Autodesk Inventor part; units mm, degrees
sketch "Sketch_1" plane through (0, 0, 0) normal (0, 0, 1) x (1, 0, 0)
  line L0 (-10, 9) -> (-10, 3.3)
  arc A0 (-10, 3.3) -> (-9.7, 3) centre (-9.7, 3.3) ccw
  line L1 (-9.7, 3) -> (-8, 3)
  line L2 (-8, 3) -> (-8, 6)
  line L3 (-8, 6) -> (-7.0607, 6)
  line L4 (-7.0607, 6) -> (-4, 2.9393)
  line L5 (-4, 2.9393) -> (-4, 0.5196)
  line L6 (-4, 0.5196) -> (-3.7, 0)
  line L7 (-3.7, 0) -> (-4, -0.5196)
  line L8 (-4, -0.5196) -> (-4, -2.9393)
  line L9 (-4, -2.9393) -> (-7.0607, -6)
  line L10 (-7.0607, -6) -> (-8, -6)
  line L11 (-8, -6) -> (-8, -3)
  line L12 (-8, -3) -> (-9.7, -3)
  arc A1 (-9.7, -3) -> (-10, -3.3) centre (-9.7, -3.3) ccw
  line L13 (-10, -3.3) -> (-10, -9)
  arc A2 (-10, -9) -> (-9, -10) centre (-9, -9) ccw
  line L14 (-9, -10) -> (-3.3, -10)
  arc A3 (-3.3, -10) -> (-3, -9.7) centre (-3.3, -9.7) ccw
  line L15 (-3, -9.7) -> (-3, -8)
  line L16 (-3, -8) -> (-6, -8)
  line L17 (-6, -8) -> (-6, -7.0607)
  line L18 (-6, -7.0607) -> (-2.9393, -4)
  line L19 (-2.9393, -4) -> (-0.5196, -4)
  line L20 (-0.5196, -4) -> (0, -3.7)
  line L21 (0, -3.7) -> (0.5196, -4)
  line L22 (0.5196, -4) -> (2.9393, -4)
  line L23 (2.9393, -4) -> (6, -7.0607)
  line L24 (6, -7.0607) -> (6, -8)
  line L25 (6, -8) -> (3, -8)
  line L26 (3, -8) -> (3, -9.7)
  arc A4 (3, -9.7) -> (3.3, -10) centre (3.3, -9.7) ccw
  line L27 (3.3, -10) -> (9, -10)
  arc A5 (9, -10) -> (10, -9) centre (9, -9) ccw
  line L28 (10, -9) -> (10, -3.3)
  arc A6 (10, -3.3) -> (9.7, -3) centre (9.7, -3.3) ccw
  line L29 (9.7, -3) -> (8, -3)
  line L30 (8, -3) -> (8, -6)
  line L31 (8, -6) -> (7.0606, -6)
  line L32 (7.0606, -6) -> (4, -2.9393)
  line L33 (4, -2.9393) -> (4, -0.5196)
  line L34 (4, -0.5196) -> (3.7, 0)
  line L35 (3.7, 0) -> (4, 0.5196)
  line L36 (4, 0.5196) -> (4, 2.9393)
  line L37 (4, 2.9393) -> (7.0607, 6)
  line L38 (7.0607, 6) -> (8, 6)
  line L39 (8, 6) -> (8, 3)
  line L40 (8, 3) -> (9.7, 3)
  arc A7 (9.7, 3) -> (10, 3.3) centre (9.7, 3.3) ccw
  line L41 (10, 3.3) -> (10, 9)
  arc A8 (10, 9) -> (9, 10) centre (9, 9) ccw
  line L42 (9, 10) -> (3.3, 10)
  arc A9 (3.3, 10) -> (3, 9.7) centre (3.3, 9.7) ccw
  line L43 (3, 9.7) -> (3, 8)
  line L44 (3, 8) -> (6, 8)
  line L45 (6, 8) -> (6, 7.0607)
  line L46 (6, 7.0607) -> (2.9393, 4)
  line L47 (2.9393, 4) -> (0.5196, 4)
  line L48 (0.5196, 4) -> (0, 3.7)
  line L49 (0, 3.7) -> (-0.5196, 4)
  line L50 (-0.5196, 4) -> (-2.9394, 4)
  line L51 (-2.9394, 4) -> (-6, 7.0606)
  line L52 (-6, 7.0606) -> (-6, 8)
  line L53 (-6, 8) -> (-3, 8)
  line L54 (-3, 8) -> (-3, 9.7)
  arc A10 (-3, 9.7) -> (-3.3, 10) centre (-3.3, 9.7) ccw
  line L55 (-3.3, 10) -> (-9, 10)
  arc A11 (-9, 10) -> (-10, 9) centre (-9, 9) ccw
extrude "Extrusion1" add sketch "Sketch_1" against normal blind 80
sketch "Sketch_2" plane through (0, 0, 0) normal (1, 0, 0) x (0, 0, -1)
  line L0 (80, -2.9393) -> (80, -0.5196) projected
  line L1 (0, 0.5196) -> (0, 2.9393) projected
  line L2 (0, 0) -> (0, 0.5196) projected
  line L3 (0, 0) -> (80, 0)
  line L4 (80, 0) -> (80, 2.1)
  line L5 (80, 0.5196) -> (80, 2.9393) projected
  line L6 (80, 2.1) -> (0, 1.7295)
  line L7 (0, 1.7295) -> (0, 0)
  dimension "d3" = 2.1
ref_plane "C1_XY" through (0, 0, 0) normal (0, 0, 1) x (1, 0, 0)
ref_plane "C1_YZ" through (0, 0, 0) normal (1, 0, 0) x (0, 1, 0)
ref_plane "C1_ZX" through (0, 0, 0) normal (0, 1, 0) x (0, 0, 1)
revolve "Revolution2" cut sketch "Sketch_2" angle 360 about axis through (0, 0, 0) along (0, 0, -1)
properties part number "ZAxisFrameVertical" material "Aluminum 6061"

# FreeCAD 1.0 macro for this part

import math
import FreeCAD as App
import Part
import Sketcher
Q = App.Units.Quantity

doc = App.newDocument("Part")
body = doc.addObject("PartDesign::Body", "Body")

sketch1 = body.newObject("Sketcher::SketchObject", "Sketch")
sketch1.AttachmentSupport = (doc.getObject("XY_Plane"), [""])
sketch1.MapMode = "FlatFace"
sketch1.addGeometry([
    Part.ArcOfCircle(Part.Circle(App.Vector(-9, 9, 0), App.Vector(0, 0, 1), 1), math.radians(90), math.radians(180)),
    Part.LineSegment(App.Vector(-10, 9, 0), App.Vector(-10, 3.3, 0)),
    Part.ArcOfCircle(Part.Circle(App.Vector(-9.7, 3.3, 0), App.Vector(0, 0, 1), 0.3), math.radians(180), math.radians(270)),
    Part.LineSegment(App.Vector(-9.7, 3, 0), App.Vector(-8, 3, 0)),
    Part.LineSegment(App.Vector(-8, 3, 0), App.Vector(-8, 6, 0)),
    Part.LineSegment(App.Vector(-8, 6, 0), App.Vector(-7.0607, 6, 0)),
    Part.LineSegment(App.Vector(-7.0607, 6, 0), App.Vector(-4, 2.9393, 0)),
    Part.LineSegment(App.Vector(-4, 2.9393, 0), App.Vector(-4, 0.5196, 0)),
    Part.LineSegment(App.Vector(-4, 0.5196, 0), App.Vector(-3.7, 0, 0)),
    Part.LineSegment(App.Vector(-3.7, 0, 0), App.Vector(-4, -0.5196, 0)),
    Part.LineSegment(App.Vector(-4, -0.5196, 0), App.Vector(-4, -2.9393, 0)),
    Part.LineSegment(App.Vector(-4, -2.9393, 0), App.Vector(-7.0607, -6, 0)),
    Part.LineSegment(App.Vector(-7.0607, -6, 0), App.Vector(-8, -6, 0)),
    Part.LineSegment(App.Vector(-8, -6, 0), App.Vector(-8, -3, 0)),
    Part.LineSegment(App.Vector(-8, -3, 0), App.Vector(-9.7, -3, 0)),
    Part.ArcOfCircle(Part.Circle(App.Vector(-9.7, -3.3, 0), App.Vector(0, 0, 1), 0.3), math.radians(90), math.radians(180)),
    Part.LineSegment(App.Vector(-10, -3.3, 0), App.Vector(-10, -9, 0)),
    Part.ArcOfCircle(Part.Circle(App.Vector(-9, -9, 0), App.Vector(0, 0, 1), 1), math.radians(180), math.radians(270)),
    Part.LineSegment(App.Vector(-9, -10, 0), App.Vector(-3.3, -10, 0)),
    Part.ArcOfCircle(Part.Circle(App.Vector(-3.3, -9.7, 0), App.Vector(0, 0, 1), 0.3), math.radians(-90), math.radians(0)),
    Part.LineSegment(App.Vector(-3, -9.7, 0), App.Vector(-3, -8, 0)),
    Part.LineSegment(App.Vector(-3, -8, 0), App.Vector(-6, -8, 0)),
    Part.LineSegment(App.Vector(-6, -8, 0), App.Vector(-6, -7.0607, 0)),
    Part.LineSegment(App.Vector(-6, -7.0607, 0), App.Vector(-2.9393, -4, 0)),
    Part.LineSegment(App.Vector(-2.9393, -4, 0), App.Vector(-0.5196, -4, 0)),
    Part.LineSegment(App.Vector(-0.5196, -4, 0), App.Vector(0, -3.7, 0)),
    Part.LineSegment(App.Vector(0, -3.7, 0), App.Vector(0.5196, -4, 0)),
    Part.LineSegment(App.Vector(0.5196, -4, 0), App.Vector(2.9393, -4, 0)),
    Part.LineSegment(App.Vector(2.9393, -4, 0), App.Vector(6, -7.0607, 0)),
    Part.LineSegment(App.Vector(6, -7.0607, 0), App.Vector(6, -8, 0)),
    Part.LineSegment(App.Vector(6, -8, 0), App.Vector(3, -8, 0)),
    Part.LineSegment(App.Vector(3, -8, 0), App.Vector(3, -9.7, 0)),
    Part.ArcOfCircle(Part.Circle(App.Vector(3.3, -9.7, 0), App.Vector(0, 0, 1), 0.3), math.radians(180), math.radians(270)),
    Part.LineSegment(App.Vector(3.3, -10, 0), App.Vector(9, -10, 0)),
    Part.ArcOfCircle(Part.Circle(App.Vector(9, -9, 0), App.Vector(0, 0, 1), 1), math.radians(-90), math.radians(0)),
    Part.LineSegment(App.Vector(10, -9, 0), App.Vector(10, -3.3, 0)),
    Part.ArcOfCircle(Part.Circle(App.Vector(9.7, -3.3, 0), App.Vector(0, 0, 1), 0.3), math.radians(0), math.radians(90)),
    Part.LineSegment(App.Vector(9.7, -3, 0), App.Vector(8, -3, 0)),
    Part.LineSegment(App.Vector(8, -3, 0), App.Vector(8, -6, 0)),
    Part.LineSegment(App.Vector(8, -6, 0), App.Vector(7.0606, -6, 0)),
    Part.LineSegment(App.Vector(7.0606, -6, 0), App.Vector(4, -2.9393, 0)),
    Part.LineSegment(App.Vector(4, -2.9393, 0), App.Vector(4, -0.5196, 0)),
    Part.LineSegment(App.Vector(4, -0.5196, 0), App.Vector(3.7, 0, 0)),
    Part.LineSegment(App.Vector(3.7, 0, 0), App.Vector(4, 0.5196, 0)),
    Part.LineSegment(App.Vector(4, 0.5196, 0), App.Vector(4, 2.9393, 0)),
    Part.LineSegment(App.Vector(4, 2.9393, 0), App.Vector(7.0607, 6, 0)),
    Part.LineSegment(App.Vector(7.0607, 6, 0), App.Vector(8, 6, 0)),
    Part.LineSegment(App.Vector(8, 6, 0), App.Vector(8, 3, 0)),
    Part.LineSegment(App.Vector(8, 3, 0), App.Vector(9.7, 3, 0)),
    Part.ArcOfCircle(Part.Circle(App.Vector(9.7, 3.3, 0), App.Vector(0, 0, 1), 0.3), math.radians(-90), math.radians(0)),
    Part.LineSegment(App.Vector(10, 3.3, 0), App.Vector(10, 9, 0)),
    Part.ArcOfCircle(Part.Circle(App.Vector(9, 9, 0), App.Vector(0, 0, 1), 1), math.radians(0), math.radians(90)),
    Part.LineSegment(App.Vector(9, 10, 0), App.Vector(3.3, 10, 0)),
    Part.ArcOfCircle(Part.Circle(App.Vector(3.3, 9.7, 0), App.Vector(0, 0, 1), 0.3), math.radians(90), math.radians(180)),
    Part.LineSegment(App.Vector(3, 9.7, 0), App.Vector(3, 8, 0)),
    Part.LineSegment(App.Vector(3, 8, 0), App.Vector(6, 8, 0)),
    Part.LineSegment(App.Vector(6, 8, 0), App.Vector(6, 7.0607, 0)),
    Part.LineSegment(App.Vector(6, 7.0607, 0), App.Vector(2.9393, 4, 0)),
    Part.LineSegment(App.Vector(2.9393, 4, 0), App.Vector(0.5196, 4, 0)),
    Part.LineSegment(App.Vector(0.5196, 4, 0), App.Vector(0, 3.7, 0)),
    Part.LineSegment(App.Vector(0, 3.7, 0), App.Vector(-0.5196, 4, 0)),
    Part.LineSegment(App.Vector(-0.5196, 4, 0), App.Vector(-2.9394, 4, 0)),
    Part.LineSegment(App.Vector(-2.9394, 4, 0), App.Vector(-6, 7.0606, 0)),
    Part.LineSegment(App.Vector(-6, 7.0606, 0), App.Vector(-6, 8, 0)),
    Part.LineSegment(App.Vector(-6, 8, 0), App.Vector(-3, 8, 0)),
    Part.LineSegment(App.Vector(-3, 8, 0), App.Vector(-3, 9.7, 0)),
    Part.ArcOfCircle(Part.Circle(App.Vector(-3.3, 9.7, 0), App.Vector(0, 0, 1), 0.3), math.radians(0), math.radians(90)),
    Part.LineSegment(App.Vector(-3.3, 10, 0), App.Vector(-9, 10, 0)),
], False)
sketch1.addConstraint([
    Sketcher.Constraint("Tangent", 0, 2, 1, 1),
    Sketcher.Constraint("Tangent", 1, 2, 2, 1),
    Sketcher.Constraint("Tangent", 2, 2, 3, 1),
    Sketcher.Constraint("Coincident", 3, 2, 4, 1),
    Sketcher.Constraint("Coincident", 4, 2, 5, 1),
    Sketcher.Constraint("Coincident", 5, 2, 6, 1),
    Sketcher.Constraint("Coincident", 6, 2, 7, 1),
    Sketcher.Constraint("Coincident", 7, 2, 8, 1),
    Sketcher.Constraint("Coincident", 8, 2, 9, 1),
    Sketcher.Constraint("Coincident", 9, 2, 10, 1),
    Sketcher.Constraint("Coincident", 10, 2, 11, 1),
    Sketcher.Constraint("Coincident", 11, 2, 12, 1),
    Sketcher.Constraint("Coincident", 12, 2, 13, 1),
    Sketcher.Constraint("Coincident", 13, 2, 14, 1),
    Sketcher.Constraint("Tangent", 14, 2, 15, 1),
    Sketcher.Constraint("Tangent", 15, 2, 16, 1),
    Sketcher.Constraint("Tangent", 16, 2, 17, 1),
    Sketcher.Constraint("Tangent", 17, 2, 18, 1),
    Sketcher.Constraint("Tangent", 18, 2, 19, 1),
    Sketcher.Constraint("Tangent", 19, 2, 20, 1),
    Sketcher.Constraint("Coincident", 20, 2, 21, 1),
    Sketcher.Constraint("Coincident", 21, 2, 22, 1),
    Sketcher.Constraint("Coincident", 22, 2, 23, 1),
    Sketcher.Constraint("Coincident", 23, 2, 24, 1),
    Sketcher.Constraint("Coincident", 24, 2, 25, 1),
    Sketcher.Constraint("Coincident", 25, 2, 26, 1),
    Sketcher.Constraint("Coincident", 26, 2, 27, 1),
    Sketcher.Constraint("Coincident", 27, 2, 28, 1),
    Sketcher.Constraint("Coincident", 28, 2, 29, 1),
    Sketcher.Constraint("Coincident", 29, 2, 30, 1),
    Sketcher.Constraint("Coincident", 30, 2, 31, 1),
    Sketcher.Constraint("Tangent", 31, 2, 32, 1),
    Sketcher.Constraint("Tangent", 32, 2, 33, 1),
    Sketcher.Constraint("Tangent", 33, 2, 34, 1),
    Sketcher.Constraint("Tangent", 34, 2, 35, 1),
    Sketcher.Constraint("Tangent", 35, 2, 36, 1),
    Sketcher.Constraint("Tangent", 36, 2, 37, 1),
    Sketcher.Constraint("Coincident", 37, 2, 38, 1),
    Sketcher.Constraint("Coincident", 38, 2, 39, 1),
    Sketcher.Constraint("Coincident", 39, 2, 40, 1),
    Sketcher.Constraint("Coincident", 40, 2, 41, 1),
    Sketcher.Constraint("Coincident", 41, 2, 42, 1),
    Sketcher.Constraint("Coincident", 42, 2, 43, 1),
    Sketcher.Constraint("Coincident", 43, 2, 44, 1),
    Sketcher.Constraint("Coincident", 44, 2, 45, 1),
    Sketcher.Constraint("Coincident", 45, 2, 46, 1),
    Sketcher.Constraint("Coincident", 46, 2, 47, 1),
    Sketcher.Constraint("Coincident", 47, 2, 48, 1),
    Sketcher.Constraint("Tangent", 48, 2, 49, 1),
    Sketcher.Constraint("Tangent", 49, 2, 50, 1),
    Sketcher.Constraint("Tangent", 50, 2, 51, 1),
    Sketcher.Constraint("Tangent", 51, 2, 52, 1),
    Sketcher.Constraint("Tangent", 52, 2, 53, 1),
    Sketcher.Constraint("Tangent", 53, 2, 54, 1),
    Sketcher.Constraint("Coincident", 54, 2, 55, 1),
    Sketcher.Constraint("Coincident", 55, 2, 56, 1),
    Sketcher.Constraint("Coincident", 56, 2, 57, 1),
    Sketcher.Constraint("Coincident", 57, 2, 58, 1),
    Sketcher.Constraint("Coincident", 58, 2, 59, 1),
    Sketcher.Constraint("Coincident", 59, 2, 60, 1),
    Sketcher.Constraint("Coincident", 60, 2, 61, 1),
    Sketcher.Constraint("Coincident", 61, 2, 62, 1),
    Sketcher.Constraint("Coincident", 62, 2, 63, 1),
    Sketcher.Constraint("Coincident", 63, 2, 64, 1),
    Sketcher.Constraint("Coincident", 64, 2, 65, 1),
    Sketcher.Constraint("Tangent", 65, 2, 66, 1),
    Sketcher.Constraint("Tangent", 66, 2, 67, 1),
    Sketcher.Constraint("Tangent", 67, 2, 0, 1),
    Sketcher.Constraint("Vertical", 1),
    Sketcher.Constraint("Horizontal", 3),
    Sketcher.Constraint("Vertical", 4),
    Sketcher.Constraint("Horizontal", 5),
    Sketcher.Constraint("Vertical", 7),
    Sketcher.Constraint("Vertical", 10),
    Sketcher.Constraint("Horizontal", 12),
    Sketcher.Constraint("Vertical", 13),
    Sketcher.Constraint("Horizontal", 14),
    Sketcher.Constraint("Vertical", 16),
    Sketcher.Constraint("Horizontal", 18),
    Sketcher.Constraint("Vertical", 20),
    Sketcher.Constraint("Horizontal", 21),
    Sketcher.Constraint("Vertical", 22),
    Sketcher.Constraint("Horizontal", 24),
    Sketcher.Constraint("Horizontal", 27),
    Sketcher.Constraint("Vertical", 29),
    Sketcher.Constraint("Horizontal", 30),
    Sketcher.Constraint("Vertical", 31),
    Sketcher.Constraint("Horizontal", 33),
    Sketcher.Constraint("Vertical", 35),
    Sketcher.Constraint("Horizontal", 37),
    Sketcher.Constraint("Vertical", 38),
    Sketcher.Constraint("Horizontal", 39),
    Sketcher.Constraint("Vertical", 41),
    Sketcher.Constraint("Vertical", 44),
    Sketcher.Constraint("Horizontal", 46),
    Sketcher.Constraint("Vertical", 47),
    Sketcher.Constraint("Horizontal", 48),
    Sketcher.Constraint("Vertical", 50),
    Sketcher.Constraint("Horizontal", 52),
    Sketcher.Constraint("Vertical", 54),
    Sketcher.Constraint("Horizontal", 55),
    Sketcher.Constraint("Vertical", 56),
    Sketcher.Constraint("Horizontal", 58),
    Sketcher.Constraint("Horizontal", 61),
    Sketcher.Constraint("Vertical", 63),
    Sketcher.Constraint("Horizontal", 64),
    Sketcher.Constraint("Vertical", 65),
    Sketcher.Constraint("Horizontal", 67),
    Sketcher.Constraint("Equal", 2, 15),
    Sketcher.Constraint("Equal", 0, 17),
    Sketcher.Constraint("Equal", 15, 19),
    Sketcher.Constraint("Equal", 19, 32),
    Sketcher.Constraint("Equal", 17, 34),
    Sketcher.Constraint("Equal", 32, 36),
    Sketcher.Constraint("Equal", 36, 49),
    Sketcher.Constraint("Equal", 34, 51),
    Sketcher.Constraint("Equal", 49, 53),
    Sketcher.Constraint("Equal", 53, 66),
    Sketcher.Constraint("Symmetric", 0, 3, 34, 3, -1, 1),
    Sketcher.Constraint("Symmetric", 15, 3, 49, 3, -1, 1),
    Sketcher.Constraint("Symmetric", 19, 3, 53, 3, -1, 1),
    Sketcher.Constraint("Symmetric", 3, 2, 37, 2, -1, 1),
    Sketcher.Constraint("Symmetric", 5, 2, 39, 2, -1, 1),
    Sketcher.Constraint("Symmetric", 6, 2, 40, 2, -1, 1),
    Sketcher.Constraint("Symmetric", 8, 2, 42, 2, -1, 1),
    Sketcher.Constraint("Symmetric", 9, 2, 43, 2, -1, 1),
    Sketcher.Constraint("Symmetric", 11, 2, 45, 2, -1, 1),
    Sketcher.Constraint("Symmetric", 21, 2, 55, 2, -1, 1),
    Sketcher.Constraint("Symmetric", 23, 2, 57, 2, -1, 1),
    Sketcher.Constraint("Symmetric", 25, 2, 59, 2, -1, 1),
    Sketcher.Constraint("Symmetric", 26, 2, 60, 2, -1, 1),
    Sketcher.Constraint("Symmetric", 28, 2, 62, 2, -1, 1),
    Sketcher.Constraint("Symmetric", 30, 2, 64, 2, -1, 1),
    Sketcher.Constraint("Symmetric", 19, 3, 32, 3, -2),
    Sketcher.Constraint("Symmetric", 15, 3, 36, 3, -2),
    Sketcher.Constraint("Symmetric", 24, 2, 26, 2, -2),
    Sketcher.Constraint("Symmetric", 22, 2, 28, 2, -2),
    Sketcher.Constraint("Symmetric", 12, 2, 38, 2, -2),
    Sketcher.Constraint("Symmetric", 10, 2, 40, 2, -2),
    Sketcher.Constraint("PointOnObject", 8, 2, -1),
    Sketcher.Constraint("PointOnObject", 25, 2, -2),
    Sketcher.Constraint("Perpendicular", 6, 11),
    Sketcher.Constraint("Parallel", 11, 23),
    Sketcher.Constraint("Perpendicular", 8, 25),
    Sketcher.Constraint("Perpendicular", 9, 26),
    Sketcher.Constraint("Perpendicular", 23, 28),
    Sketcher.Constraint("Perpendicular", 25, 42),
    Sketcher.Constraint("Perpendicular", 40, 45),
    Sketcher.Constraint("Parallel", 45, 57),
    Sketcher.Constraint("Perpendicular", 42, 59),
    Sketcher.Constraint("Perpendicular", 57, 62),
    Sketcher.Constraint("Horizontal", 21, 2, 29, 2),
    Sketcher.Constraint("Vertical", 5, 2, 11, 2),
    Sketcher.Constraint("Vertical", 38, 2, 46, 2),
    Sketcher.Constraint("Equal", 67, 1),
    Sketcher.Constraint("Equal", 64, 4),
    Sketcher.Constraint("Equal", 61, 7),
    Sketcher.Constraint("Equal", 48, 20),
    Sketcher.Constraint("Equal", 46, 22),
    Sketcher.Constraint("Equal", 11, 23),
    Sketcher.Constraint("Equal", 9, 25),
    Sketcher.Constraint("Radius", 0, Q("1 mm")),
    Sketcher.Constraint("Radius", 2, Q("0.3 mm")),
    Sketcher.Constraint("DistanceX", 21, 2, 21, 1, Q("3 mm")),
    Sketcher.Constraint("Angle", 8, Q("-59.9993 deg")),
    Sketcher.Constraint("DistanceX", 3, 1, 3, 2, Q("1.7 mm")),
    Sketcher.Constraint("DistanceX", 18, 1, 18, 2, Q("5.7 mm")),
    Sketcher.Constraint("DistanceX", 0, 3, -1, 1, Q("9 mm")),
    Sketcher.Constraint("DistanceX", 6, 2, -1, 1, Q("4 mm")),
    Sketcher.Constraint("Distance", 8, Q("0.6 mm")),
    Sketcher.Constraint("DistanceX", 5, 1, 5, 2, Q("0.9393 mm")),
])
pad1 = body.newObject("PartDesign::Pad", "Pad")
pad1.Profile = sketch1
pad1.Length = 80
pad1.Reversed = True

sketch2 = body.newObject("Sketcher::SketchObject", "Sketch001")
sketch2.AttachmentSupport = (doc.getObject("YZ_Plane"), [""])
sketch2.MapMode = "FlatFace"
sketch2.addGeometry([
    Part.LineSegment(App.Vector(1.7295, 0, 0), App.Vector(0, 0, 0)),
    Part.LineSegment(App.Vector(0, 0, 0), App.Vector(0, -80, 0)),
    Part.LineSegment(App.Vector(0, -80, 0), App.Vector(2.1, -80, 0)),
    Part.LineSegment(App.Vector(2.1, -80, 0), App.Vector(1.7295, 0, 0)),
], False)
sketch2.addConstraint([
    Sketcher.Constraint("Coincident", 0, 2, 1, 1),
    Sketcher.Constraint("Coincident", 1, 2, 2, 1),
    Sketcher.Constraint("Coincident", 2, 2, 3, 1),
    Sketcher.Constraint("Coincident", 3, 2, 0, 1),
    Sketcher.Constraint("Horizontal", 0),
    Sketcher.Constraint("Vertical", 1),
    Sketcher.Constraint("Horizontal", 2),
    Sketcher.Constraint("Coincident", 0, 2, -1, 1),
    Sketcher.Constraint("DistanceX", 2, 1, 2, 2, Q("2.1 mm")),
    Sketcher.Constraint("DistanceY", 1, 2, 1, 1, Q("80 mm")),
    Sketcher.Constraint("DistanceX", 0, 2, 0, 1, Q("1.7295 mm")),
])
groove = body.newObject("PartDesign::Groove", "Groove")
groove.Profile = sketch2
groove.ReferenceAxis = (sketch2, ["V_Axis"])
groove.Angle = 360

doc.recompute()
